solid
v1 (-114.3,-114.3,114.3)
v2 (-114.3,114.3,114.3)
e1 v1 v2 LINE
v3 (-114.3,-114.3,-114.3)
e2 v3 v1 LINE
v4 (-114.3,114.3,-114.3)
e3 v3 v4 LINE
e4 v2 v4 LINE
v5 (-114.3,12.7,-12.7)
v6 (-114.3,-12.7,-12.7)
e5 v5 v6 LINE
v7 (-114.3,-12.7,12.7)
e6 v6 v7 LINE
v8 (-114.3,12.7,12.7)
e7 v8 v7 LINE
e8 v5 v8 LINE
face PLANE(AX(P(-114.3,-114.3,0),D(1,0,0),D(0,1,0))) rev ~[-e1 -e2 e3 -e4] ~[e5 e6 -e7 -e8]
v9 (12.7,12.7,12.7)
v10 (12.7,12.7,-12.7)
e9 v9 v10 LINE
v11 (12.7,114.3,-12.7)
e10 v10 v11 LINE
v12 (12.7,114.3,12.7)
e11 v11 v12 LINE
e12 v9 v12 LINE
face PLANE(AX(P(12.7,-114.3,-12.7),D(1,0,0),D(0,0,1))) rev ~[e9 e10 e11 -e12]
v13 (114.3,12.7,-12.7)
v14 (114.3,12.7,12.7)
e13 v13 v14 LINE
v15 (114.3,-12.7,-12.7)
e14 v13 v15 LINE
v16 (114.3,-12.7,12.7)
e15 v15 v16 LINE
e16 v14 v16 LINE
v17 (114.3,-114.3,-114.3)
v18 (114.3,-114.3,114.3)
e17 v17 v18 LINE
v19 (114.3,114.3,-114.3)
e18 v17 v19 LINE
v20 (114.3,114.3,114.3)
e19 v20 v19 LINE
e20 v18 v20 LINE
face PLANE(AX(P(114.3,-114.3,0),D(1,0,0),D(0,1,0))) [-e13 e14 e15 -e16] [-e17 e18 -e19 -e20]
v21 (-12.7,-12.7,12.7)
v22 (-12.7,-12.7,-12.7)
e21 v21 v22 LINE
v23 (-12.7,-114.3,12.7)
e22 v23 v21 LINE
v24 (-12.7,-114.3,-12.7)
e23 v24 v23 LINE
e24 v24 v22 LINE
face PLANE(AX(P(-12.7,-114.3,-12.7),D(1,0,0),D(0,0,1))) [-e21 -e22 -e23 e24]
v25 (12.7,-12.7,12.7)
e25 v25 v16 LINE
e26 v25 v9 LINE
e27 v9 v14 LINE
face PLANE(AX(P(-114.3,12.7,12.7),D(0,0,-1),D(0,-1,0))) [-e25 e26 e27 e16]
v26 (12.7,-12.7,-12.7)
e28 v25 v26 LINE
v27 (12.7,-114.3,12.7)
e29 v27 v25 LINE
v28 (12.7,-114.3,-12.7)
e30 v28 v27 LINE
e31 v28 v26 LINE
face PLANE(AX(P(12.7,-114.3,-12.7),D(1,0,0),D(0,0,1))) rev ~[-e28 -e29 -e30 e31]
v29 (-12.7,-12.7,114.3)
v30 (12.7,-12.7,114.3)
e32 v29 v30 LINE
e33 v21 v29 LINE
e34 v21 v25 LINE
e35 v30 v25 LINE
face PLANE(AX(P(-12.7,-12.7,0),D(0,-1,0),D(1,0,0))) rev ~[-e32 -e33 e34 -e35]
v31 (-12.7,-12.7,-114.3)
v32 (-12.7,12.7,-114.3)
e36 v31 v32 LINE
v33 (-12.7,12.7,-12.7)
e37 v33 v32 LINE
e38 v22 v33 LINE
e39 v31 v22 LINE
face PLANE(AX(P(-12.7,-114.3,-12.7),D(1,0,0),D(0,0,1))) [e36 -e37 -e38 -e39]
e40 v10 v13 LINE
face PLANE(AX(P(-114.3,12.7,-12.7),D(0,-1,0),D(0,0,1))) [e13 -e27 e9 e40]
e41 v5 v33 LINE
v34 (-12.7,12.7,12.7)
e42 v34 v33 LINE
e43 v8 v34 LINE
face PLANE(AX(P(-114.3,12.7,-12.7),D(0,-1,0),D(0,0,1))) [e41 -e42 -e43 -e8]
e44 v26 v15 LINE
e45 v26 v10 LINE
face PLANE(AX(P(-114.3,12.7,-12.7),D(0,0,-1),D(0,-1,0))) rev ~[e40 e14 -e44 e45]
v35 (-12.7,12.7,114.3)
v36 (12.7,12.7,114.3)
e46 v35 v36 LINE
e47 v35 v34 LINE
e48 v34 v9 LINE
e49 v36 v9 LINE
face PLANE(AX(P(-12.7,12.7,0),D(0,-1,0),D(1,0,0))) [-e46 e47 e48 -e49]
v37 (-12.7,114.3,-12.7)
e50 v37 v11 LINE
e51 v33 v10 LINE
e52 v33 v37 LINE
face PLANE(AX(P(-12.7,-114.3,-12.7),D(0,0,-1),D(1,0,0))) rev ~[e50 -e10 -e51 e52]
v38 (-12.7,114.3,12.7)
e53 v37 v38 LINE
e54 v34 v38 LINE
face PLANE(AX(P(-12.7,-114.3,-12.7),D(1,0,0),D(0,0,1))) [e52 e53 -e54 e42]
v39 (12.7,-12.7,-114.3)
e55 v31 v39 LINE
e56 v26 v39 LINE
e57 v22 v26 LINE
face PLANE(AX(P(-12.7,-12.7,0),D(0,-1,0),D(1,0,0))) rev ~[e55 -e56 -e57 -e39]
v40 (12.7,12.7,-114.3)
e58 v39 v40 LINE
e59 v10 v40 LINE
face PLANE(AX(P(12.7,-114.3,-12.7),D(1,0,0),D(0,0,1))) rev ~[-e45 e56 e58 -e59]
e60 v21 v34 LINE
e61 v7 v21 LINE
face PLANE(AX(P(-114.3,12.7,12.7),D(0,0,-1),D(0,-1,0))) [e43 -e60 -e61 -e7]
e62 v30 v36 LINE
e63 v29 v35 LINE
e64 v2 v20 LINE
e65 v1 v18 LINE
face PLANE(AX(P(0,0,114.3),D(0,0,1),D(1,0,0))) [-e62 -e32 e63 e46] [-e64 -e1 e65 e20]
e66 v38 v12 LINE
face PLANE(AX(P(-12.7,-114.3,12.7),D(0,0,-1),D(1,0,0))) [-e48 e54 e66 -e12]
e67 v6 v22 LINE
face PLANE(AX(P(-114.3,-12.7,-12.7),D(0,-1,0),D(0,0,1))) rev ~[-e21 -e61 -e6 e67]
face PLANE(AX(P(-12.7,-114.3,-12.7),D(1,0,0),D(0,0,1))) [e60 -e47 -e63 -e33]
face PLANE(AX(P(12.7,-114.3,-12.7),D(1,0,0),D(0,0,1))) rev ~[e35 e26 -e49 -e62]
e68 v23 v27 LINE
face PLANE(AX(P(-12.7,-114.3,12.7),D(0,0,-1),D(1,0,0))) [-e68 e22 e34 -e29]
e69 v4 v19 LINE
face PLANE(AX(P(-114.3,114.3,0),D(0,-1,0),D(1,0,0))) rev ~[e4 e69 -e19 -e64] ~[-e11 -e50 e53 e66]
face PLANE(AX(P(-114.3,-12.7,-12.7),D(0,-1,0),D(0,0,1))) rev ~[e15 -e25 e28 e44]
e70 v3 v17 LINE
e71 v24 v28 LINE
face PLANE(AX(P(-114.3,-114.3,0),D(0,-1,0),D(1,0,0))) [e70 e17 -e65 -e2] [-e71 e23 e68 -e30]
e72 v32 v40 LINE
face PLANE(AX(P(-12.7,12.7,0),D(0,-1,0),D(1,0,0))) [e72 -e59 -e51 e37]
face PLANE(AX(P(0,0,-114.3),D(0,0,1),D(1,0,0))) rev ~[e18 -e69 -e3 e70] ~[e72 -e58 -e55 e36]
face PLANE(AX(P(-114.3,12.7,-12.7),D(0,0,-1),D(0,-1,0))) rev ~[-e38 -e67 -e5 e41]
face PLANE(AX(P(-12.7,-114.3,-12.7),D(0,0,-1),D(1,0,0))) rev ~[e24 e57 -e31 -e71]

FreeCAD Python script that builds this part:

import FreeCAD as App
import Part
import Sketcher

V = App.Vector
Q = App.Units.Quantity


def add_polygon(sketch, points):
    """Adds a closed chain of lines whose ends are joined by coincident constraints."""
    first, n = sketch.GeometryCount, len(points)
    for a, b in zip(points, points[1:] + points[:1]):
        sketch.addGeometry(Part.LineSegment(App.Vector(*a, 0), App.Vector(*b, 0)), False)
    for i in range(n):
        sketch.addConstraint(Sketcher.Constraint("Coincident", first + i, 2, first + (i + 1) % n, 1))

doc = App.newDocument("Part")
body = doc.addObject("PartDesign::Body", "Body")

sketch1 = doc.addObject("Sketcher::SketchObject", "Sketch")
body.addObject(sketch1)
sketch1.AttachmentSupport = (doc.XY_Plane, [""])
sketch1.MapMode = "FlatFace"
add_polygon(sketch1, [(-114.3, 114.3), (-114.3, -114.3), (114.3, -114.3), (114.3, 114.3)])
add_polygon(sketch1, [(12.7, -12.7), (-12.7, -12.7), (-12.7, 12.7), (12.7, 12.7)])
sketch1.addConstraint([
    Sketcher.Constraint("Vertical", 0),
    Sketcher.Constraint("Horizontal", 1),
    Sketcher.Constraint("Vertical", 2),
    Sketcher.Constraint("Horizontal", 3),
    Sketcher.Constraint("Horizontal", 4),
    Sketcher.Constraint("Vertical", 5),
    Sketcher.Constraint("Horizontal", 6),
    Sketcher.Constraint("Vertical", 7),
    Sketcher.Constraint("Symmetric", 0, 2, 2, 2, -1, 1),
    Sketcher.Constraint("Symmetric", 4, 2, 6, 2, -1, 1),
    Sketcher.Constraint("Equal", 3, 0),
    Sketcher.Constraint("Equal", 6, 5),
    Sketcher.Constraint("DistanceX", 1, 1, 1, 2, Q("9 in")),
    Sketcher.Constraint("DistanceX", 4, 2, 4, 1, Q("1 in")),
])
pad1 = doc.addObject("PartDesign::Pad", "Pad")
body.addObject(pad1)
pad1.Profile = sketch1
pad1.Length = Q("4.5 in")

sketch2 = doc.addObject("Sketcher::SketchObject", "Sketch001")
body.addObject(sketch2)
sketch2.AttachmentSupport = (doc.XY_Plane, [""])
sketch2.MapMode = "FlatFace"
add_polygon(sketch2, [(-114.3, 114.3), (-114.3, -114.3), (114.3, -114.3), (114.3, 114.3)])
add_polygon(sketch2, [(12.7, -12.7), (-12.7, -12.7), (-12.7, 12.7), (12.7, 12.7)])
sketch2.addConstraint([
    Sketcher.Constraint("Vertical", 0),
    Sketcher.Constraint("Horizontal", 1),
    Sketcher.Constraint("Vertical", 2),
    Sketcher.Constraint("Horizontal", 3),
    Sketcher.Constraint("Horizontal", 4),
    Sketcher.Constraint("Vertical", 5),
    Sketcher.Constraint("Horizontal", 6),
    Sketcher.Constraint("Vertical", 7),
    Sketcher.Constraint("Symmetric", 0, 2, 2, 2, -1, 1),
    Sketcher.Constraint("Symmetric", 4, 2, 6, 2, -1, 1),
    Sketcher.Constraint("Equal", 3, 0),
    Sketcher.Constraint("Equal", 6, 5),
    Sketcher.Constraint("DistanceX", 1, 1, 1, 2, Q("9 in")),
    Sketcher.Constraint("DistanceX", 4, 2, 4, 1, Q("1 in")),
])
pad2 = doc.addObject("PartDesign::Pad", "Pad001")
body.addObject(pad2)
pad2.Profile = sketch2
pad2.Length = Q("4.5 in")
pad2.Reversed = True

sketch3 = doc.addObject("Sketcher::SketchObject", "Sketch002")
body.addObject(sketch3)
sketch3.AttachmentSupport = (doc.XZ_Plane, [""])
sketch3.MapMode = "FlatFace"
sketch3.AttachmentOffset = App.Placement(V(0, 0, 4.5 * 25.4), App.Rotation())
add_polygon(sketch3, [(-12.7, 12.7), (-12.7, -12.7), (12.7, -12.7), (12.7, 12.7)])
sketch3.addConstraint([
    Sketcher.Constraint("Vertical", 0),
    Sketcher.Constraint("Horizontal", 1),
    Sketcher.Constraint("Vertical", 2),
    Sketcher.Constraint("Horizontal", 3),
    Sketcher.Constraint("Symmetric", 0, 2, 2, 2, -1, 1),
    Sketcher.Constraint("Equal", 3, 0),
    Sketcher.Constraint("DistanceX", 1, 1, 1, 2, Q("1 in")),
])
pocket1 = doc.addObject("PartDesign::Pocket", "Pocket")
body.addObject(pocket1)
pocket1.Profile = sketch3
pocket1.Length = Q("9 in")

sketch4 = doc.addObject("Sketcher::SketchObject", "Sketch003")
body.addObject(sketch4)
sketch4.AttachmentSupport = (doc.YZ_Plane, [""])
sketch4.MapMode = "FlatFace"
sketch4.AttachmentOffset = App.Placement(V(0, 0, -4.5 * 25.4), App.Rotation())
add_polygon(sketch4, [(12.7, 12.7), (12.7, -12.7), (-12.7, -12.7), (-12.7, 12.7)])
sketch4.addConstraint([
    Sketcher.Constraint("Vertical", 0),
    Sketcher.Constraint("Horizontal", 1),
    Sketcher.Constraint("Vertical", 2),
    Sketcher.Constraint("Horizontal", 3),
    Sketcher.Constraint("Symmetric", 0, 2, 2, 2, -1, 1),
    Sketcher.Constraint("Equal", 3, 0),
    Sketcher.Constraint("DistanceX", 1, 2, 1, 1, Q("1 in")),
])
pocket2 = doc.addObject("PartDesign::Pocket", "Pocket001")
body.addObject(pocket2)
pocket2.Profile = sketch4
pocket2.Length = Q("9 in")
pocket2.Reversed = True

doc.recompute()
